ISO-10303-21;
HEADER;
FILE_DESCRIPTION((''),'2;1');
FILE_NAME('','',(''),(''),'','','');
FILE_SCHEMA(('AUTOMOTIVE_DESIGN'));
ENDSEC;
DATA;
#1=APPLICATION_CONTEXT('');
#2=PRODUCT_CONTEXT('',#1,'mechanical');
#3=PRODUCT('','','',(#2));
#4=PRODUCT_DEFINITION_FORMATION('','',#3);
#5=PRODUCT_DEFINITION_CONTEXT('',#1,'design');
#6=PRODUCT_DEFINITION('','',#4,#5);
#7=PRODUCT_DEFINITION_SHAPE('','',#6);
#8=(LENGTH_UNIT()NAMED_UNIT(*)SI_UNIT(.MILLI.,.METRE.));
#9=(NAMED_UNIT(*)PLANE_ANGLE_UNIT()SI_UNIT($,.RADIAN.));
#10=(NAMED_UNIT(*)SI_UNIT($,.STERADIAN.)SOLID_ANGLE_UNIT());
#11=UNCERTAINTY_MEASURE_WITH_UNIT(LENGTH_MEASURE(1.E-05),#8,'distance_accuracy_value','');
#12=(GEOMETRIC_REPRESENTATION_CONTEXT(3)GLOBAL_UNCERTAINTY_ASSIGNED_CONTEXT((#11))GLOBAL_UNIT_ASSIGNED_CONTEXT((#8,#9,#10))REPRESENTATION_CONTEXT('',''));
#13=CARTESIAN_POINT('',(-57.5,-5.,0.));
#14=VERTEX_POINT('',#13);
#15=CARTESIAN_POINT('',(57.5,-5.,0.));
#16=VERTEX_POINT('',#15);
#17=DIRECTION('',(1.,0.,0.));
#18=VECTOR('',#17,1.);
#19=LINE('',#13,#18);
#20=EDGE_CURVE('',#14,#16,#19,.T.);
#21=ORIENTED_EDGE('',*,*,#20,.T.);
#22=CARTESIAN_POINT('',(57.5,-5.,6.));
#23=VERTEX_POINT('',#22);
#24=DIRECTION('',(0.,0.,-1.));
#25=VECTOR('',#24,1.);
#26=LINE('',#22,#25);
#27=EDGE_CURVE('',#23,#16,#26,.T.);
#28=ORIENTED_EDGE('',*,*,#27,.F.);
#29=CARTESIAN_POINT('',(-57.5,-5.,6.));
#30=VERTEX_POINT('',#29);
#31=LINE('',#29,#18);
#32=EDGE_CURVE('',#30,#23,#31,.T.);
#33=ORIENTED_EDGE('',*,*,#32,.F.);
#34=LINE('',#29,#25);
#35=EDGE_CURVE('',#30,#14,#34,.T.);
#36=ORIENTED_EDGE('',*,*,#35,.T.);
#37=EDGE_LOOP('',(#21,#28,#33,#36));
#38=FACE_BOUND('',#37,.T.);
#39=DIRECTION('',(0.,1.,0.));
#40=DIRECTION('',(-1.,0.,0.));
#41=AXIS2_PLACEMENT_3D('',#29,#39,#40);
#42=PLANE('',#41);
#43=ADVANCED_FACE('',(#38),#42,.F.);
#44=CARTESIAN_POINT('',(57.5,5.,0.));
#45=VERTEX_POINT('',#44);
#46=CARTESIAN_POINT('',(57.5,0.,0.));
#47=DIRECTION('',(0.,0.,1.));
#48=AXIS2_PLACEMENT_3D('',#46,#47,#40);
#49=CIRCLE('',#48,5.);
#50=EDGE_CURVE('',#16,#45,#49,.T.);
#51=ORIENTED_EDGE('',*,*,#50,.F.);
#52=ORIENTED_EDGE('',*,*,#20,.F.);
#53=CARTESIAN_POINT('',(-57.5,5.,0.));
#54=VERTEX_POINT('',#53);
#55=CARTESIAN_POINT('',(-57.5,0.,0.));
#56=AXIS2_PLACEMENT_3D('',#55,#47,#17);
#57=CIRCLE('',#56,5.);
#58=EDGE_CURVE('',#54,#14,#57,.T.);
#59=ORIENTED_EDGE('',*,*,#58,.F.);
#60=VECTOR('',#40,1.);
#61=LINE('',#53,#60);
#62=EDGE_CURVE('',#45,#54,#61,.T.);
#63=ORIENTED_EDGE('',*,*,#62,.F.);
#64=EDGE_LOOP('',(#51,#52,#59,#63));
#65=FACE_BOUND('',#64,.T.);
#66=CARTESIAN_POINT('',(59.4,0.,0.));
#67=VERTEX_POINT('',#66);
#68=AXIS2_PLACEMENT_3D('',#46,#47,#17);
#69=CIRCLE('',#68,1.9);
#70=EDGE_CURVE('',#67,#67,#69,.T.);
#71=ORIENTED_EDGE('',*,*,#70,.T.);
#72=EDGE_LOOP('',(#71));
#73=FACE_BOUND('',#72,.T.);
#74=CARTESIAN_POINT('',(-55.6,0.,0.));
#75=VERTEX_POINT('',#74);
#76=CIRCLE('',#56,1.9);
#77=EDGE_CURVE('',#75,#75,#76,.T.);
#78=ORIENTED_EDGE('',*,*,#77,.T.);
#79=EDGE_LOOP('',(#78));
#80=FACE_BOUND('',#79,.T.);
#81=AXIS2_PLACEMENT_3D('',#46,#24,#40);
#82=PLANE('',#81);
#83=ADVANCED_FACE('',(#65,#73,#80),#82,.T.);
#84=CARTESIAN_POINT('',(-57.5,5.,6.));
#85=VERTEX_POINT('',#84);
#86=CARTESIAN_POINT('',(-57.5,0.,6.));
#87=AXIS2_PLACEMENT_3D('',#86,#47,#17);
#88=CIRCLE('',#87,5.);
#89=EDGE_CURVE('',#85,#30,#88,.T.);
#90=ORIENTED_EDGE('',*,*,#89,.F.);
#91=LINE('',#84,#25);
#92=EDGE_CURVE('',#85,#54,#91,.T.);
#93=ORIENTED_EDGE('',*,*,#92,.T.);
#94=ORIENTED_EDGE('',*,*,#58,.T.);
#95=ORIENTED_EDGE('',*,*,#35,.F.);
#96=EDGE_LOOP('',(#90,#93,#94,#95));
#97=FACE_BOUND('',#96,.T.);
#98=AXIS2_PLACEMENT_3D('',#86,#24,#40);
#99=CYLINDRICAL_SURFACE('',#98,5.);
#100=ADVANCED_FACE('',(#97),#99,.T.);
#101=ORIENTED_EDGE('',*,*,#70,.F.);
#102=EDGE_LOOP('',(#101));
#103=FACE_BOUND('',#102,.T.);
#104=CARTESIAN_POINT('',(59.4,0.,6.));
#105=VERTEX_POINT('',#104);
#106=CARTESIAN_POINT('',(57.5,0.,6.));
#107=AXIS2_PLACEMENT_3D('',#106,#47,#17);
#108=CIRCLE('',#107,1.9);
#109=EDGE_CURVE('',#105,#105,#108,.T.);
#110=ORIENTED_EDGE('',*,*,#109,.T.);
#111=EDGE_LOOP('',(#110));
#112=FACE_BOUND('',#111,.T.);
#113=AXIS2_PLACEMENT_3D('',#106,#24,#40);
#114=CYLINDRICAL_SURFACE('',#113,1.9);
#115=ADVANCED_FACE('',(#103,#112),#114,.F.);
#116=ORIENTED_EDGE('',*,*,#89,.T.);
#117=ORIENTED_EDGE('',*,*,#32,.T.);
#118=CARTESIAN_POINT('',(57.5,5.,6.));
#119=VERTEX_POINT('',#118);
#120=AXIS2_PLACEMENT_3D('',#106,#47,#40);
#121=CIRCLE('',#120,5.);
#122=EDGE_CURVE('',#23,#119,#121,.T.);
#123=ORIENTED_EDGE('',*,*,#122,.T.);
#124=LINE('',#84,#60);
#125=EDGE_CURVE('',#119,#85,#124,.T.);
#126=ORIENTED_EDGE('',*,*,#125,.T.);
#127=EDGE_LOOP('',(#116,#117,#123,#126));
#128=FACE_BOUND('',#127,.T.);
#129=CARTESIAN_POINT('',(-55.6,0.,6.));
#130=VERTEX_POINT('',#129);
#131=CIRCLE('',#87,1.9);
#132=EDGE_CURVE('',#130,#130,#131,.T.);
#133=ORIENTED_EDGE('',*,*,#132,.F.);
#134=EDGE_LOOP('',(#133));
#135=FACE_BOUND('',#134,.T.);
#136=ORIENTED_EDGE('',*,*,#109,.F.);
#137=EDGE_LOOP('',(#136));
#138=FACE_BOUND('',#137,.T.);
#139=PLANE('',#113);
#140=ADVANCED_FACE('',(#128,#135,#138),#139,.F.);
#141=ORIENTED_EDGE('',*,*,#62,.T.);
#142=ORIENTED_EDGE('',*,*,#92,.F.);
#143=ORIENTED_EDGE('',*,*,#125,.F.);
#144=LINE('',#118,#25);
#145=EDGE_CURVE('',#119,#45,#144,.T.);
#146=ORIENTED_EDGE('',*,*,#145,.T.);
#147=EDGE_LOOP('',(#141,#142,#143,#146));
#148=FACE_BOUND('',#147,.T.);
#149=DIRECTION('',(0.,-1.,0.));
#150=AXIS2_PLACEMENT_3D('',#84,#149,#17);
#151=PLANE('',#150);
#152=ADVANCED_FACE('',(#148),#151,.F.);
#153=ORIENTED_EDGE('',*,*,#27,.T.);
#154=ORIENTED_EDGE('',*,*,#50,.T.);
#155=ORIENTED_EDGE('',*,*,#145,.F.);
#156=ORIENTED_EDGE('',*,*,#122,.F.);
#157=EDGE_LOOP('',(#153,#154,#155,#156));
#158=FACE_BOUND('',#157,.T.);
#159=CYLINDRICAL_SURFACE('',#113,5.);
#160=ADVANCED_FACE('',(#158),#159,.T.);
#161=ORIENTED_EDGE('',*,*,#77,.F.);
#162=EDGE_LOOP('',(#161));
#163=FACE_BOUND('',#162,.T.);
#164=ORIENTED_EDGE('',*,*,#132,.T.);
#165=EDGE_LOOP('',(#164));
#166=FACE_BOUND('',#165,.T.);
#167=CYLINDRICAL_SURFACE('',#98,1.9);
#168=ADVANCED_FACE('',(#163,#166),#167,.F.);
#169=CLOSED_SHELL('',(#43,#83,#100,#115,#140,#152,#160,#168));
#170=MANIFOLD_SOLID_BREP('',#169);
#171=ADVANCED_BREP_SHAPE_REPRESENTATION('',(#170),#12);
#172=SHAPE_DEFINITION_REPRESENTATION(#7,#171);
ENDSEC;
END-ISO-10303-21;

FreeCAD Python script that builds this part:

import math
import FreeCAD as App
import Part
import Sketcher
from FreeCAD import Vector
Q = App.Units.Quantity

doc = App.newDocument("Part")
body = doc.addObject("PartDesign::Body", "Body")

sketch1 = doc.addObject("Sketcher::SketchObject", "Sketch")
body.addObject(sketch1)
sketch1.AttachmentSupport = (doc.XY_Plane, [""])
sketch1.MapMode = "FlatFace"
sketch1.addGeometry([
    Part.LineSegment(Vector(57.5, 5, 0), Vector(-57.5, 5, 0)),
    Part.ArcOfCircle(Part.Circle(Vector(-57.5, 0, 0), Vector(0, 0, 1), 5), math.radians(90), math.radians(270)),
    Part.LineSegment(Vector(-57.5, -5, 0), Vector(57.5, -5, 0)),
    Part.ArcOfCircle(Part.Circle(Vector(57.5, 0, 0), Vector(0, 0, 1), 5), math.radians(-90), math.radians(90)),
    Part.Circle(Vector(57.5, 0, 0), Vector(0, 0, 1), 1.9),
    Part.Circle(Vector(-57.5, 0, 0), Vector(0, 0, 1), 1.9),
], False)
sketch1.addConstraint([
    Sketcher.Constraint("Tangent", 0, 2, 1, 1),
    Sketcher.Constraint("Tangent", 1, 2, 2, 1),
    Sketcher.Constraint("Tangent", 2, 2, 3, 1),
    Sketcher.Constraint("Tangent", 3, 2, 0, 1),
    Sketcher.Constraint("Horizontal", 0),
    Sketcher.Constraint("Horizontal", 2),
    Sketcher.Constraint("Coincident", 4, 3, 3, 3),
    Sketcher.Constraint("Coincident", 5, 3, 1, 3),
    Sketcher.Constraint("Equal", 4, 5),
    Sketcher.Constraint("Symmetric", 1, 3, 3, 3, -1, 1),
    Sketcher.Constraint("Radius", 1, Q("5 mm")),
    Sketcher.Constraint("Diameter", 4, Q("3.8 mm")),
    Sketcher.Constraint("DistanceX", 0, 2, 0, 1, Q("115 mm")),
])
pad1 = doc.addObject("PartDesign::Pad", "Pad")
body.addObject(pad1)
pad1.Profile = sketch1
pad1.Length = 6

doc.recompute()
